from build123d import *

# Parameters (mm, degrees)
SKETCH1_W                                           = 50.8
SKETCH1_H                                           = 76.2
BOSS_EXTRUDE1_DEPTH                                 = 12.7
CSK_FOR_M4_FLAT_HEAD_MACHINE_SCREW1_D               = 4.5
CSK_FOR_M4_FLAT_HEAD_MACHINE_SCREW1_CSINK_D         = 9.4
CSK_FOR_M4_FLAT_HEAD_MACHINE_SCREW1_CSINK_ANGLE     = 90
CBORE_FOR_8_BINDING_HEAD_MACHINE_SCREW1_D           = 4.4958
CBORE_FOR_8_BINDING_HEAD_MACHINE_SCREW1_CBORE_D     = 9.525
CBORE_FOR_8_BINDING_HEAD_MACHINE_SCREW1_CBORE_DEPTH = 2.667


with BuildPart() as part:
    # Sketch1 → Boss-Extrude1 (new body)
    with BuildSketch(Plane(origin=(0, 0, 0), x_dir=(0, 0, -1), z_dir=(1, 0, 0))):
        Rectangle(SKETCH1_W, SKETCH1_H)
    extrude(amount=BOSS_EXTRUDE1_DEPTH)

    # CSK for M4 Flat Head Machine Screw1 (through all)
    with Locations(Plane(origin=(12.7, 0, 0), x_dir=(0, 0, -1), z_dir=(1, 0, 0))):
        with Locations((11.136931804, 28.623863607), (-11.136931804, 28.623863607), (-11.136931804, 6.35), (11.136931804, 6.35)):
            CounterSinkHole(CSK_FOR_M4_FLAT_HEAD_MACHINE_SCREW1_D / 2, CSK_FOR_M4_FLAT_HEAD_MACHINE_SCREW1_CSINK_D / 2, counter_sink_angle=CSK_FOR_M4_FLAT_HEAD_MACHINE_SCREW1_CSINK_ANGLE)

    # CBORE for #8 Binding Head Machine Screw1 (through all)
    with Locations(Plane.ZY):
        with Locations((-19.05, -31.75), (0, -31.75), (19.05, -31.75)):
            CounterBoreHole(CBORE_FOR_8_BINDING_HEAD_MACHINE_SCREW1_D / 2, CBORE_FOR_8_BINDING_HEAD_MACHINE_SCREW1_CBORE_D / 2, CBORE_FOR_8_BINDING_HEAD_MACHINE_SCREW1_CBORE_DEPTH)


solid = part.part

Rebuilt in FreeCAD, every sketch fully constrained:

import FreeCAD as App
import Part
import Sketcher

V = App.Vector
Q = App.Units.Quantity


def add_polygon(sketch, points):
    """Adds a closed chain of lines whose ends are joined by coincident constraints."""
    first, n = sketch.GeometryCount, len(points)
    for a, b in zip(points, points[1:] + points[:1]):
        sketch.addGeometry(Part.LineSegment(App.Vector(*a, 0), App.Vector(*b, 0)), False)
    for i in range(n):
        sketch.addConstraint(Sketcher.Constraint("Coincident", first + i, 2, first + (i + 1) % n, 1))

doc = App.newDocument("Part")
params = doc.addObject("Spreadsheet::Sheet", "Params")
for row, (alias, value) in enumerate([
    ("sketch1_width", "3 in"),
    ("sketch1_height", "2 in"),
    ("pad1_length", "0.5 in"),
    ("hole_diameter", "4.5 mm"),
    ("hole_csink_diameter", "9.4 mm"),
    ("sketch3_diameter", "0.177 in"),
    ("hole2_diameter", "0.177 in"),
    ("hole2_cbore_diameter", "0.375 in"),
    ("hole2_cbore_depth", "0.105 in"),
], start=1):
    params.set(f"A{row}", alias)
    params.set(f"B{row}", "=" + value)
    params.setAlias(f"B{row}", alias)

body = doc.addObject("PartDesign::Body", "Body")

# Sketch on YZ plane
sketch1 = doc.addObject("Sketcher::SketchObject", "Sketch")
body.addObject(sketch1)
sketch1.AttachmentSupport = (doc.YZ_Plane, [""])
sketch1.MapMode = "FlatFace"
add_polygon(sketch1, [(38, 25), (-38, 25), (-38, -25), (38, -25)])  # lines 0-3
sketch1.addConstraint([
    Sketcher.Constraint("Horizontal", 0),
    Sketcher.Constraint("Vertical", 1),
    Sketcher.Constraint("Horizontal", 2),
    Sketcher.Constraint("Vertical", 3),
    Sketcher.Constraint("Symmetric", 0, 2, 2, 2, -1, 1),
    Sketcher.Constraint("DistanceX", 0, 2, 0, 1, Q("3 in")),
    Sketcher.Constraint("DistanceY", 1, 2, 1, 1, Q("2 in")),
])
sketch1.setExpression("Constraints[9]", "Params.sketch1_width")
sketch1.setExpression("Constraints[10]", "Params.sketch1_height")
pad1 = doc.addObject("PartDesign::Pad", "Pad")
body.addObject(pad1)
pad1.Profile = sketch1
pad1.setExpression("Length", "Params.pad1_length")

# Sketch on YZ plane
sketch2 = doc.addObject("Sketcher::SketchObject", "Sketch001")
body.addObject(sketch2)
sketch2.AttachmentSupport = (doc.YZ_Plane, [""])
sketch2.MapMode = "FlatFace"
sketch2.AttachmentOffset = App.Placement(V(0, 0, 0.5 * 25.4), App.Rotation())
sketch2.addGeometry([
    Part.Circle(V(28.6, -11.1, 0), V(0, 0, 1), 2.2),
    Part.Circle(V(28.6, 11.1, 0), V(0, 0, 1), 2.2),
    Part.Circle(V(6.3, 11.1, 0), V(0, 0, 1), 2.2),
    Part.Circle(V(6.3, -11.1, 0), V(0, 0, 1), 2.2),
], False)
sketch2.addConstraint([
    Sketcher.Constraint("Equal", 0, 1),
    Sketcher.Constraint("Equal", 1, 2),
    Sketcher.Constraint("Equal", 2, 3),
    Sketcher.Constraint("Symmetric", 0, 3, 1, 3, -1),
    Sketcher.Constraint("Symmetric", 2, 3, 3, 3, -1),
    Sketcher.Constraint("Horizontal", 1, 3, 2, 3),
    Sketcher.Constraint("Diameter", 0, 4.5),
    Sketcher.Constraint("DistanceX", -1, 1, 2, 3, Q("0.25 in")),
    Sketcher.Constraint("DistanceY", 0, 3, -1, 1, 11.136932),
    Sketcher.Constraint("DistanceX", -1, 1, 0, 3, 28.623864),
])
doc.recompute()
hole = doc.addObject("PartDesign::Hole", "Hole")
body.addObject(hole)
hole.Profile = sketch2
hole.ThreadType = "None"
hole.setExpression("Diameter", "Params.hole_diameter")
hole.DepthType = "ThroughAll"
hole.HoleCutType = "Countersink"
hole.setExpression("HoleCutDiameter", "Params.hole_csink_diameter")
hole.HoleCutCountersinkAngle = 90

# Sketch on YZ plane
sketch3 = doc.addObject("Sketcher::SketchObject", "Sketch002")
body.addObject(sketch3)
sketch3.AttachmentSupport = (doc.YZ_Plane, [""])
sketch3.MapMode = "FlatFace"
sketch3.addGeometry([
    Part.Circle(V(-31.8, -19.1, 0), V(0, 0, 1), 2.2),
    Part.Circle(V(-31.8, 0, 0), V(0, 0, 1), 2.2),
    Part.Circle(V(-31.8, 19.1, 0), V(0, 0, 1), 2.2),
], False)
sketch3.addConstraint([
    Sketcher.Constraint("Equal", 0, 1),
    Sketcher.Constraint("Equal", 1, 2),
    Sketcher.Constraint("Symmetric", 0, 3, 2, 3, -1),
    Sketcher.Constraint("PointOnObject", 1, 3, -1),
    Sketcher.Constraint("Vertical", 0, 3, 1, 3),
    Sketcher.Constraint("Diameter", 0, Q("0.177 in")),
    Sketcher.Constraint("DistanceY", 0, 3, 2, 3, Q("1.5 in")),
    Sketcher.Constraint("DistanceX", 0, 3, -1, 1, Q("1.25 in")),
])
sketch3.setExpression("Constraints[5]", "Params.sketch3_diameter")
doc.recompute()
hole2 = doc.addObject("PartDesign::Hole", "Hole001")
body.addObject(hole2)
hole2.Profile = sketch3
hole2.ThreadType = "None"
hole2.setExpression("Diameter", "Params.hole2_diameter")
hole2.DepthType = "ThroughAll"
hole2.HoleCutType = "Counterbore"
hole2.setExpression("HoleCutDiameter", "Params.hole2_cbore_diameter")
hole2.setExpression("HoleCutDepth", "Params.hole2_cbore_depth")
hole2.Reversed = True

doc.recompute()
